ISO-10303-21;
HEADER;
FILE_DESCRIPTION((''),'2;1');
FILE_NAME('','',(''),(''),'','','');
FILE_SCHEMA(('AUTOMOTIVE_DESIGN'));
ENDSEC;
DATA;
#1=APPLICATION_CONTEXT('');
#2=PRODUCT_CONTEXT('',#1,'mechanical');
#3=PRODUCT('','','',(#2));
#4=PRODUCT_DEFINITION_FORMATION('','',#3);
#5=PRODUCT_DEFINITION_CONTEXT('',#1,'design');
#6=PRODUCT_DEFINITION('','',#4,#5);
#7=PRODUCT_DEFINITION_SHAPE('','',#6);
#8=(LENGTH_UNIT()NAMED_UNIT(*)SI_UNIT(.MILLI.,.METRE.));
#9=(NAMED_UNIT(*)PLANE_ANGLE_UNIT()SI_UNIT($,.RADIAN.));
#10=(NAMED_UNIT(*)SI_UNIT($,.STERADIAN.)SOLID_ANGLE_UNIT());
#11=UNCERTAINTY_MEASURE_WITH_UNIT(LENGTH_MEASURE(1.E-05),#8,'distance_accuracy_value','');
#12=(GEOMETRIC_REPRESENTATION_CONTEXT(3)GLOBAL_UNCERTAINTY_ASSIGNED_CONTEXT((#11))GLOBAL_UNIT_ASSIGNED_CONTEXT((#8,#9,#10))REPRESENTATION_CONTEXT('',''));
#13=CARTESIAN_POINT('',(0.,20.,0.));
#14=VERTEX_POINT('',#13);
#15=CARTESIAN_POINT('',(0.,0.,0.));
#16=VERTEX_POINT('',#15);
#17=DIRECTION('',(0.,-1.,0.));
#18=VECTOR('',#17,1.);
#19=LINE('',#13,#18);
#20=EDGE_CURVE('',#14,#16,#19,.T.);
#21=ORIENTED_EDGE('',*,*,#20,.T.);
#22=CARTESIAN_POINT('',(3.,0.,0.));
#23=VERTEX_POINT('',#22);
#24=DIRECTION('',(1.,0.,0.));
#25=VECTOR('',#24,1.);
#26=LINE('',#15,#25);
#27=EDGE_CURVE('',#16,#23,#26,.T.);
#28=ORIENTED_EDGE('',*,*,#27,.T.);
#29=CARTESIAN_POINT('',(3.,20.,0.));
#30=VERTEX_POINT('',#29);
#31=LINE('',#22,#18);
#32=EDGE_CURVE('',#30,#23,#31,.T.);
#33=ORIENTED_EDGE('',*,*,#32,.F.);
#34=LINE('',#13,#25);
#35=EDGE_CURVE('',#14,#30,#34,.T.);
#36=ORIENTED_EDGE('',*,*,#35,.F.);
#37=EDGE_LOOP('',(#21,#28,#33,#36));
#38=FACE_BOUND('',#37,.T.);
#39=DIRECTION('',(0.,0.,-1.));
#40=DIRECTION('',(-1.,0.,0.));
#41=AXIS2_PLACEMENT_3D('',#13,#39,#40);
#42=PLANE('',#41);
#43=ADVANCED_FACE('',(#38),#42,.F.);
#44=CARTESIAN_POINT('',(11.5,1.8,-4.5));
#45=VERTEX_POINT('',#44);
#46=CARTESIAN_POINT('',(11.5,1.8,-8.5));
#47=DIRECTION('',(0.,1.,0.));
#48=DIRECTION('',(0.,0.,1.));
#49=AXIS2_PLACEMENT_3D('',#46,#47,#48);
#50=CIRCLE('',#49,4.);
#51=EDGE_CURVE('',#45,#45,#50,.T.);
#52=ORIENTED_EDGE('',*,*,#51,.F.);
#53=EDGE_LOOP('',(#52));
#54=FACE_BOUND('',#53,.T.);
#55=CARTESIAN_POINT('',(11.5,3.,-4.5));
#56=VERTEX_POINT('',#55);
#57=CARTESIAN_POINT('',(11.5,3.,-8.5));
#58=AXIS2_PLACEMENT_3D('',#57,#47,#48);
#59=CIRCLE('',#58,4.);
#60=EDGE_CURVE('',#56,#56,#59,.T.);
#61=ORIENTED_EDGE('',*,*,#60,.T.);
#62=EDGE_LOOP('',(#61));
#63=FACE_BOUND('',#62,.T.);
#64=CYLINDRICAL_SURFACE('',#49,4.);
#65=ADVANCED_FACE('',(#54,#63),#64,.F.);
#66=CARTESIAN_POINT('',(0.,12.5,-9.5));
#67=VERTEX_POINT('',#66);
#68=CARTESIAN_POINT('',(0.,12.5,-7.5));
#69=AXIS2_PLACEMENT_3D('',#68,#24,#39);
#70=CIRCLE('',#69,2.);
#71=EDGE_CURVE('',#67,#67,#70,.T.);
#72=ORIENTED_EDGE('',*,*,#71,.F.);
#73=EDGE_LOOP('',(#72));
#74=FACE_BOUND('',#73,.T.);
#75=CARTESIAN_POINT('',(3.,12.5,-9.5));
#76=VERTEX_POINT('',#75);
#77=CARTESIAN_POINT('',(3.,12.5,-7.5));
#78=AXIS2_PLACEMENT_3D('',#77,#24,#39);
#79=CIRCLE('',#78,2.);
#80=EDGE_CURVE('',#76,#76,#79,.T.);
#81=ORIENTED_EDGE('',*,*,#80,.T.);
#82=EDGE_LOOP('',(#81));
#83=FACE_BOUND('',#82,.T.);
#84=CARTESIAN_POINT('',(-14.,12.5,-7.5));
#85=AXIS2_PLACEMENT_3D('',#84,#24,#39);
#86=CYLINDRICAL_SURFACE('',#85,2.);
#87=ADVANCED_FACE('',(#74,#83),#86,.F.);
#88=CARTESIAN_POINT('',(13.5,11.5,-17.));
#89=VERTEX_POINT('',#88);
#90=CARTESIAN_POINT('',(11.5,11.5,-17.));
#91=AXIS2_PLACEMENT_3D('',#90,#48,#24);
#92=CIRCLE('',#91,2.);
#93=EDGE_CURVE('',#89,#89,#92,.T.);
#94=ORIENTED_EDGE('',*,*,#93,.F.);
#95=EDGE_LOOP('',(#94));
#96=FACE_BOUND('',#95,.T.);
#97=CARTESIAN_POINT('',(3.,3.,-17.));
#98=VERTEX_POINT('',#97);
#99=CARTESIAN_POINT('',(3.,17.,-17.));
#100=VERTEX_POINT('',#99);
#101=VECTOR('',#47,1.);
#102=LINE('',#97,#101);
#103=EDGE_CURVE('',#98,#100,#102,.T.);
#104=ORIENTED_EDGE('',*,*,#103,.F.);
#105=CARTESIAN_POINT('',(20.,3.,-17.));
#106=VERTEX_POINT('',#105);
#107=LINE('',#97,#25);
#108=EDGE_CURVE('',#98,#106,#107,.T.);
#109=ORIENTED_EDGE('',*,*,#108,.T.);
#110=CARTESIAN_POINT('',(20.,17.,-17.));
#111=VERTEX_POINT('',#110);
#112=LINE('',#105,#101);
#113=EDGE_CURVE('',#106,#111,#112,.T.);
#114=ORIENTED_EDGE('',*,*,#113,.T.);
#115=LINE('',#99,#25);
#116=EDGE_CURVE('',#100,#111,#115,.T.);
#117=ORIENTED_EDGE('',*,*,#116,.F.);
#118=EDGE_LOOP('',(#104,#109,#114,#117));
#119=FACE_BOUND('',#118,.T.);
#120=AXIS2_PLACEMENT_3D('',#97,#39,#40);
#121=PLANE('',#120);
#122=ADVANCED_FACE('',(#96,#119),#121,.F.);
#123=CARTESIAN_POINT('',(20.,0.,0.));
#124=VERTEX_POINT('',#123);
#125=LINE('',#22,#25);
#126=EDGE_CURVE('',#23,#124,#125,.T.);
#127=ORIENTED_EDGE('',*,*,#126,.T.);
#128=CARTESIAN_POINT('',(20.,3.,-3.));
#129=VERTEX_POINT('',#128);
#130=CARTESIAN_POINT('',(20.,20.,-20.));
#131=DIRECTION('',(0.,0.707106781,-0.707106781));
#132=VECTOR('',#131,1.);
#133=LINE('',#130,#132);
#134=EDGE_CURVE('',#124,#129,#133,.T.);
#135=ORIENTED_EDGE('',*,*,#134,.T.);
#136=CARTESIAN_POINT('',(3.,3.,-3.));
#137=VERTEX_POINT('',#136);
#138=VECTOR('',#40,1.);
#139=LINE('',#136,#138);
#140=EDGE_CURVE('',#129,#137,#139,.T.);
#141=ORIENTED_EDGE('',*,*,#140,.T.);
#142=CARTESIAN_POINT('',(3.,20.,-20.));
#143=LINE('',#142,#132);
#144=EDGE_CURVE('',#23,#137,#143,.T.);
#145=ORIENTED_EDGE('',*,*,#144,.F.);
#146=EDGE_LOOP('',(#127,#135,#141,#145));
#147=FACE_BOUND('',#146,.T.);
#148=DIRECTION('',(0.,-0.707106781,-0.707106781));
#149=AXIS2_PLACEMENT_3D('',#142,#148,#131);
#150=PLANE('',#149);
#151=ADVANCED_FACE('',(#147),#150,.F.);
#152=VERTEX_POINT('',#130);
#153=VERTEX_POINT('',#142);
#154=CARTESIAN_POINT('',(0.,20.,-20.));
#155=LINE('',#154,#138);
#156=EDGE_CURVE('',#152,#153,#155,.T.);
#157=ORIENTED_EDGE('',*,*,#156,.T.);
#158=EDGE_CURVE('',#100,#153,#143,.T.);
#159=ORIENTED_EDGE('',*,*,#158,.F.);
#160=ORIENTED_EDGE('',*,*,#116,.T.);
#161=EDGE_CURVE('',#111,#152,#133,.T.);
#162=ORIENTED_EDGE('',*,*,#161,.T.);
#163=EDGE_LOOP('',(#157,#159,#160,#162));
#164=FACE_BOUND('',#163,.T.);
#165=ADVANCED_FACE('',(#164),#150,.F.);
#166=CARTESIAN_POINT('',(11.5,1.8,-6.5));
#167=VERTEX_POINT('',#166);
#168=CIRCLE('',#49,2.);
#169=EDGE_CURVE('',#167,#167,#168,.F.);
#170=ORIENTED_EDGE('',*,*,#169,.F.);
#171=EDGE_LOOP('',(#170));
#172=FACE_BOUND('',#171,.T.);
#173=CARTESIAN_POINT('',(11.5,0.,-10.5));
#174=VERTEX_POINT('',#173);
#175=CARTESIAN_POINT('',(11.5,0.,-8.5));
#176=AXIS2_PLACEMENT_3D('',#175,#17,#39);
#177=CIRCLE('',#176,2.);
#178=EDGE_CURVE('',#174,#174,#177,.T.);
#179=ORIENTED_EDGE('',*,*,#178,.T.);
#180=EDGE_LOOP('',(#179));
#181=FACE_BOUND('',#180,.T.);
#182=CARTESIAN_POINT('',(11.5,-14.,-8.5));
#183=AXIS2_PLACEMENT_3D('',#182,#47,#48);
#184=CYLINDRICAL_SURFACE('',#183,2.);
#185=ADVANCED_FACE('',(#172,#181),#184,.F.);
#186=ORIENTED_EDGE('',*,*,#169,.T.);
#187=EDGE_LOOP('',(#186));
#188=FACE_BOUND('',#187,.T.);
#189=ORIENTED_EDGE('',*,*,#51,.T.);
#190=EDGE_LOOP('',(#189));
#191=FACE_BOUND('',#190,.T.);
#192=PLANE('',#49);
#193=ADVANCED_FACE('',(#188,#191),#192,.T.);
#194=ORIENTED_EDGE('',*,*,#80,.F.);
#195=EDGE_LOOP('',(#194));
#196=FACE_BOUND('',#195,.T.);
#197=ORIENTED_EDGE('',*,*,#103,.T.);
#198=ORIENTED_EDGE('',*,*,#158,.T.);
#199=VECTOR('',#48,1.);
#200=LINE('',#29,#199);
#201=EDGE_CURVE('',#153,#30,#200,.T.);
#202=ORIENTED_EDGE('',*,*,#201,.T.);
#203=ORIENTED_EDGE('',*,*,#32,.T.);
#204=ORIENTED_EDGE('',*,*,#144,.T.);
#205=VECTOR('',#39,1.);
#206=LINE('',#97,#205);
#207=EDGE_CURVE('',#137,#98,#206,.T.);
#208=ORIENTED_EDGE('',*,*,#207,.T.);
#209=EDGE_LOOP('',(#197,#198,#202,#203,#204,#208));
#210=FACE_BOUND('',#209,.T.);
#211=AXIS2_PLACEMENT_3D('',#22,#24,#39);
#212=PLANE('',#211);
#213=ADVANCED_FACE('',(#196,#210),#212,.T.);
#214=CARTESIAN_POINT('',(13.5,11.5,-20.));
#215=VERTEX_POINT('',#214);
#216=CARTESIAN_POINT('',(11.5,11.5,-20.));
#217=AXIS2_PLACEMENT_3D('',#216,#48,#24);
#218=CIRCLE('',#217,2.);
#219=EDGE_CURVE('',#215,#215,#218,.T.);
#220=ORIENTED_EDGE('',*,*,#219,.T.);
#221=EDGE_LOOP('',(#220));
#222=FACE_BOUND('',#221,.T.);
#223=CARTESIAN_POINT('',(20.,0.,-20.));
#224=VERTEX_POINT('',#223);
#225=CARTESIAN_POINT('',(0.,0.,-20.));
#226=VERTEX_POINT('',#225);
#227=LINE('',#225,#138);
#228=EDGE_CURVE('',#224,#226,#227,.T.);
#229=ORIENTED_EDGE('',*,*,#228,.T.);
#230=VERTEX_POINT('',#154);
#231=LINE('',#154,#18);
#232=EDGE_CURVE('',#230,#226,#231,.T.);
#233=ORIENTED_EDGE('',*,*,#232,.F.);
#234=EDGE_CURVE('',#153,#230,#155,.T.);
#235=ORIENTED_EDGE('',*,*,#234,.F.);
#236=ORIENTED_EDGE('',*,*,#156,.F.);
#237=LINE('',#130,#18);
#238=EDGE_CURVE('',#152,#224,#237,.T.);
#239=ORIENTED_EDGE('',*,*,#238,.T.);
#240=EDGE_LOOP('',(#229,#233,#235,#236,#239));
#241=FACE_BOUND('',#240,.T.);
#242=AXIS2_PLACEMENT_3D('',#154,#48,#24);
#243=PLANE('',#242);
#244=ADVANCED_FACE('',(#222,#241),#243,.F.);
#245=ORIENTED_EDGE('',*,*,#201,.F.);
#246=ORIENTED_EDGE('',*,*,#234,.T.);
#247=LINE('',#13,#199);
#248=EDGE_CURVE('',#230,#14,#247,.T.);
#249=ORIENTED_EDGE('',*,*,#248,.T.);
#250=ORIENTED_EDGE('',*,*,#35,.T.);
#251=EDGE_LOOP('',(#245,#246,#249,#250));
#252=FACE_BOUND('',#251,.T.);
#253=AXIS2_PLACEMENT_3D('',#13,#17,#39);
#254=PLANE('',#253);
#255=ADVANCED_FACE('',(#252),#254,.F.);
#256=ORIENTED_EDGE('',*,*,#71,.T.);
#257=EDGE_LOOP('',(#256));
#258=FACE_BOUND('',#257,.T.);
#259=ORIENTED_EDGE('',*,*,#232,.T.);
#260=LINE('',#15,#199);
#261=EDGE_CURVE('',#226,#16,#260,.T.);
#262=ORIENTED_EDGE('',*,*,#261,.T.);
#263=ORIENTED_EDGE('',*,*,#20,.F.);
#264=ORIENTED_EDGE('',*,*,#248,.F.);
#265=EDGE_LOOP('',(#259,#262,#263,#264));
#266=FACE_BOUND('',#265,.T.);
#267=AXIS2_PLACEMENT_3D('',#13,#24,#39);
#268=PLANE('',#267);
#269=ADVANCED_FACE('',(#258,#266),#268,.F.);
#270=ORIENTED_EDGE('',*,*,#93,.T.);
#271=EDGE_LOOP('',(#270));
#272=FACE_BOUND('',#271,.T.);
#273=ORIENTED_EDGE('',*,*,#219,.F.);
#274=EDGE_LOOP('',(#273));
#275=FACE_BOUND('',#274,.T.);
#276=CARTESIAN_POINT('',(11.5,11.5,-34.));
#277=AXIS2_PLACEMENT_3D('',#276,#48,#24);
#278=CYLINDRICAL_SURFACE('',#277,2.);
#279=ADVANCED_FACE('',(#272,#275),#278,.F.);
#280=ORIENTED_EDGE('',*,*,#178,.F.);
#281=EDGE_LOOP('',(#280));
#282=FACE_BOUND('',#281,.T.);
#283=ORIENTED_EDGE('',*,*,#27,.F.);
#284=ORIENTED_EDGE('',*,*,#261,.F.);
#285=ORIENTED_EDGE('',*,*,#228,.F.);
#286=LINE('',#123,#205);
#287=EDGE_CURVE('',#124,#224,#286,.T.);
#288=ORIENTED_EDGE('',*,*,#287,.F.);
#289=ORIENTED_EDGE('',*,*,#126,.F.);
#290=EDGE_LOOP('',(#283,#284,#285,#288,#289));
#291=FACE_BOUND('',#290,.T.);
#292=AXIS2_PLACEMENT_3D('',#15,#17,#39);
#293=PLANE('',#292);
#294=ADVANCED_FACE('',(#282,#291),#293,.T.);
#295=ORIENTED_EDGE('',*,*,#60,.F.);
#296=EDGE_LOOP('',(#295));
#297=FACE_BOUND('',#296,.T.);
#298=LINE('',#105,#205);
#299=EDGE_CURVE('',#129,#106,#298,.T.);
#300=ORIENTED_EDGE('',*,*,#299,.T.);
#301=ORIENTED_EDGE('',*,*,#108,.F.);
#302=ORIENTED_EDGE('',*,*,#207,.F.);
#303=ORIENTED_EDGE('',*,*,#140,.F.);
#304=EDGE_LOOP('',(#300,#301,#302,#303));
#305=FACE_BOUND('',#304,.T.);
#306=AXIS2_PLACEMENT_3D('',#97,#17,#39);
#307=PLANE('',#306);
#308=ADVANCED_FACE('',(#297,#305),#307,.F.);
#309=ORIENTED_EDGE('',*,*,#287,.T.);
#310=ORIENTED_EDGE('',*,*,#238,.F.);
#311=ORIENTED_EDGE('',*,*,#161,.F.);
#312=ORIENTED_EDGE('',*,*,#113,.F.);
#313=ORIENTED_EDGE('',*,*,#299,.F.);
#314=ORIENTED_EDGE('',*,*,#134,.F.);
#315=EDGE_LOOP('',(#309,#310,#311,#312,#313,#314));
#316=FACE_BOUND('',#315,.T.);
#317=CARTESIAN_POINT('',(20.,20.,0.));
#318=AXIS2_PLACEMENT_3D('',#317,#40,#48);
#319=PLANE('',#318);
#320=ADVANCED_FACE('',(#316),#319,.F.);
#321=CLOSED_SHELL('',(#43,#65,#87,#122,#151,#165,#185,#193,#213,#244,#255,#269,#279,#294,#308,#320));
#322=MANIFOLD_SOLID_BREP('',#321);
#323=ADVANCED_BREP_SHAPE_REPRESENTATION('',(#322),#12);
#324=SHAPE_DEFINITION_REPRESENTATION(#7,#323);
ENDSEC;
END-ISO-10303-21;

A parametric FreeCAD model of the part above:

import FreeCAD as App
import Part
import Sketcher

V = App.Vector
Q = App.Units.Quantity

doc = App.newDocument("Part")
params = doc.addObject("Spreadsheet::Sheet", "Params")
for row, (alias, value) in enumerate([
    ("sketch1_width", "20 mm"),
    ("pad1_length", "20 mm"),
    ("sketch2_width", "20 mm"),
    ("pocket1_length", "17 mm"),
    ("pocket2_length", "17 mm"),
    ("sketch4_diameter", "4 mm"),
    ("pocket3_length", "17 mm"),
    ("sketch5_diameter", "4 mm"),
    ("pocket4_length", "17 mm"),
    ("sketch6_diameter", "4 mm"),
    ("pocket5_length", "17 mm"),
    ("sketch7_diameter", "8 mm"),
    ("pocket6_length", "1.2 mm"),
], start=1):
    params.set(f"A{row}", alias)
    params.set(f"B{row}", "=" + value)
    params.setAlias(f"B{row}", alias)

body = doc.addObject("PartDesign::Body", "Body")

# Sketch on XZ plane
sketch1 = body.newObject("Sketcher::SketchObject", "Sketch")
sketch1.AttachmentSupport = (doc.getObject("XZ_Plane"), [""])
sketch1.MapMode = "FlatFace"
sketch1.addGeometry(Part.LineSegment(V(0, -20, 0), V(0, 0, 0)), False)
sketch1.addGeometry(Part.LineSegment(V(0, 0, 0), V(20, 0, 0)), False)
sketch1.addGeometry(Part.LineSegment(V(20, 0, 0), V(20, -20, 0)), False)
sketch1.addGeometry(Part.LineSegment(V(20, -20, 0), V(0, -20, 0)), False)
sketch1.addConstraint(Sketcher.Constraint("Coincident", 0, 2, 1, 1))
sketch1.addConstraint(Sketcher.Constraint("Coincident", 1, 2, 2, 1))
sketch1.addConstraint(Sketcher.Constraint("Coincident", 2, 2, 3, 1))
sketch1.addConstraint(Sketcher.Constraint("Coincident", 3, 2, 0, 1))
sketch1.addConstraint(Sketcher.Constraint("Vertical", 0))
sketch1.addConstraint(Sketcher.Constraint("Horizontal", 1))
sketch1.addConstraint(Sketcher.Constraint("Vertical", 2))
sketch1.addConstraint(Sketcher.Constraint("Horizontal", 3))
sketch1.addConstraint(Sketcher.Constraint("Coincident", 0, 2, -1, 1))
sketch1.addConstraint(Sketcher.Constraint("Equal", 3, 0))
sketch1.addConstraint(Sketcher.Constraint("DistanceX", 1, 1, 1, 2, Q("20 mm")))
sketch1.setExpression("Constraints[10]", "Params.sketch1_width")
pad1 = body.newObject("PartDesign::Pad", "Pad")
pad1.Profile = sketch1
pad1.setExpression("Length", "Params.pad1_length")
pad1.Reversed = True

# Sketch on YZ plane
sketch2 = body.newObject("Sketcher::SketchObject", "Sketch001")
sketch2.AttachmentSupport = (doc.getObject("YZ_Plane"), [""])
sketch2.MapMode = "FlatFace"
sketch2.AttachmentOffset = App.Placement(V(0, 0, 20), App.Rotation())
sketch2.addGeometry(Part.LineSegment(V(0, 0, 0), V(20, -20, 0)), False)
sketch2.addGeometry(Part.LineSegment(V(20, -20, 0), V(20, 0, 0)), False)
sketch2.addGeometry(Part.LineSegment(V(20, 0, 0), V(0, 0, 0)), False)
sketch2.addConstraint(Sketcher.Constraint("Coincident", 0, 2, 1, 1))
sketch2.addConstraint(Sketcher.Constraint("Coincident", 1, 2, 2, 1))
sketch2.addConstraint(Sketcher.Constraint("Coincident", 2, 2, 0, 1))
sketch2.addConstraint(Sketcher.Constraint("Vertical", 1))
sketch2.addConstraint(Sketcher.Constraint("Horizontal", 2))
sketch2.addConstraint(Sketcher.Constraint("Coincident", 2, 2, -1, 1))
sketch2.addConstraint(Sketcher.Constraint("Equal", 2, 1))
sketch2.addConstraint(Sketcher.Constraint("DistanceX", 2, 2, 2, 1, Q("20 mm")))
sketch2.setExpression("Constraints[7]", "Params.sketch2_width")
pocket1 = body.newObject("PartDesign::Pocket", "Pocket")
pocket1.Profile = sketch2
pocket1.setExpression("Length", "Params.pocket1_length")

# Sketch on YZ plane
sketch3 = body.newObject("Sketcher::SketchObject", "Sketch002")
sketch3.AttachmentSupport = (doc.getObject("YZ_Plane"), [""])
sketch3.MapMode = "FlatFace"
sketch3.AttachmentOffset = App.Placement(V(0, 0, 20), App.Rotation())
sketch3.addGeometry(Part.LineSegment(V(20.919651, 0.326301, 0), V(3, 0.326301, 0)), False)
sketch3.addGeometry(Part.LineSegment(V(3, 0.326301, 0), V(3, -17, 0)), False)
sketch3.addGeometry(Part.LineSegment(V(3, -17, 0), V(20.919651, -17, 0)), False)
sketch3.addGeometry(Part.LineSegment(V(20.919651, -17, 0), V(20.919651, 0.326301, 0)), False)
sketch3.addConstraint(Sketcher.Constraint("Coincident", 0, 2, 1, 1))
sketch3.addConstraint(Sketcher.Constraint("Coincident", 1, 2, 2, 1))
sketch3.addConstraint(Sketcher.Constraint("Coincident", 2, 2, 3, 1))
sketch3.addConstraint(Sketcher.Constraint("Coincident", 3, 2, 0, 1))
sketch3.addConstraint(Sketcher.Constraint("Horizontal", 0))
sketch3.addConstraint(Sketcher.Constraint("Vertical", 1))
sketch3.addConstraint(Sketcher.Constraint("Horizontal", 2))
sketch3.addConstraint(Sketcher.Constraint("Vertical", 3))
sketch3.addConstraint(Sketcher.Constraint("DistanceX", -1, 1, 0, 2, Q("3 mm")))
sketch3.addConstraint(Sketcher.Constraint("DistanceY", 1, 2, -1, 1, Q("17 mm")))
sketch3.addConstraint(Sketcher.Constraint("DistanceY", 1, 2, 1, 1, Q("17.326301 mm")))
sketch3.addConstraint(Sketcher.Constraint("DistanceX", 0, 2, 0, 1, Q("17.919651 mm")))
pocket2 = body.newObject("PartDesign::Pocket", "Pocket001")
pocket2.Profile = sketch3
pocket2.setExpression("Length", "Params.pocket2_length")

# Sketch on YZ plane
sketch4 = body.newObject("Sketcher::SketchObject", "Sketch003")
sketch4.AttachmentSupport = (doc.getObject("YZ_Plane"), [""])
sketch4.MapMode = "FlatFace"
sketch4.AttachmentOffset = App.Placement(V(0, 0, 3), App.Rotation())
sketch4.addGeometry(Part.Circle(V(12.5, -7.5, 0), V(0, 0, 1), 2), False)
sketch4.addConstraint(Sketcher.Constraint("Diameter", 0, Q("4 mm")))
sketch4.addConstraint(Sketcher.Constraint("DistanceX", -1, 1, 0, 3, Q("12.5 mm")))
sketch4.addConstraint(Sketcher.Constraint("DistanceY", 0, 3, -1, 1, Q("7.5 mm")))
sketch4.setExpression("Constraints[0]", "Params.sketch4_diameter")
pocket3 = body.newObject("PartDesign::Pocket", "Pocket002")
pocket3.Profile = sketch4
pocket3.setExpression("Length", "Params.pocket3_length")

# Sketch on XY plane
sketch5 = body.newObject("Sketcher::SketchObject", "Sketch004")
sketch5.AttachmentSupport = (doc.getObject("XY_Plane"), [""])
sketch5.MapMode = "FlatFace"
sketch5.AttachmentOffset = App.Placement(V(0, 0, -17), App.Rotation())
sketch5.addGeometry(Part.Circle(V(11.5, 11.5, 0), V(0, 0, 1), 2), False)
sketch5.addConstraint(Sketcher.Constraint("Diameter", 0, Q("4 mm")))
sketch5.addConstraint(Sketcher.Constraint("DistanceX", -1, 1, 0, 3, Q("11.5 mm")))
sketch5.addConstraint(Sketcher.Constraint("DistanceY", -1, 1, 0, 3, Q("11.5 mm")))
sketch5.setExpression("Constraints[0]", "Params.sketch5_diameter")
pocket4 = body.newObject("PartDesign::Pocket", "Pocket003")
pocket4.Profile = sketch5
pocket4.setExpression("Length", "Params.pocket4_length")

# Sketch on XZ plane
sketch6 = body.newObject("Sketcher::SketchObject", "Sketch005")
sketch6.AttachmentSupport = (doc.getObject("XZ_Plane"), [""])
sketch6.MapMode = "FlatFace"
sketch6.AttachmentOffset = App.Placement(V(0, 0, -3), App.Rotation())
sketch6.addGeometry(Part.Circle(V(11.5, -8.5, 0), V(0, 0, 1), 2), False)
sketch6.addConstraint(Sketcher.Constraint("Diameter", 0, Q("4 mm")))
sketch6.addConstraint(Sketcher.Constraint("DistanceX", -1, 1, 0, 3, Q("11.5 mm")))
sketch6.addConstraint(Sketcher.Constraint("DistanceY", 0, 3, -1, 1, Q("8.5 mm")))
sketch6.setExpression("Constraints[0]", "Params.sketch6_diameter")
pocket5 = body.newObject("PartDesign::Pocket", "Pocket004")
pocket5.Profile = sketch6
pocket5.setExpression("Length", "Params.pocket5_length")
pocket5.Reversed = True

# Sketch on XZ plane
sketch7 = body.newObject("Sketcher::SketchObject", "Sketch006")
sketch7.AttachmentSupport = (doc.getObject("XZ_Plane"), [""])
sketch7.MapMode = "FlatFace"
sketch7.AttachmentOffset = App.Placement(V(0, 0, -3), App.Rotation())
sketch7.addGeometry(Part.Circle(V(11.5, -8.5, 0), V(0, 0, 1), 4), False)
sketch7.addConstraint(Sketcher.Constraint("Diameter", 0, Q("8 mm")))
sketch7.addConstraint(Sketcher.Constraint("DistanceX", -1, 1, 0, 3, Q("11.5 mm")))
sketch7.addConstraint(Sketcher.Constraint("DistanceY", 0, 3, -1, 1, Q("8.5 mm")))
sketch7.setExpression("Constraints[0]", "Params.sketch7_diameter")
pocket6 = body.newObject("PartDesign::Pocket", "Pocket005")
pocket6.Profile = sketch7
pocket6.setExpression("Length", "Params.pocket6_length")
pocket6.Reversed = True

doc.recompute()
